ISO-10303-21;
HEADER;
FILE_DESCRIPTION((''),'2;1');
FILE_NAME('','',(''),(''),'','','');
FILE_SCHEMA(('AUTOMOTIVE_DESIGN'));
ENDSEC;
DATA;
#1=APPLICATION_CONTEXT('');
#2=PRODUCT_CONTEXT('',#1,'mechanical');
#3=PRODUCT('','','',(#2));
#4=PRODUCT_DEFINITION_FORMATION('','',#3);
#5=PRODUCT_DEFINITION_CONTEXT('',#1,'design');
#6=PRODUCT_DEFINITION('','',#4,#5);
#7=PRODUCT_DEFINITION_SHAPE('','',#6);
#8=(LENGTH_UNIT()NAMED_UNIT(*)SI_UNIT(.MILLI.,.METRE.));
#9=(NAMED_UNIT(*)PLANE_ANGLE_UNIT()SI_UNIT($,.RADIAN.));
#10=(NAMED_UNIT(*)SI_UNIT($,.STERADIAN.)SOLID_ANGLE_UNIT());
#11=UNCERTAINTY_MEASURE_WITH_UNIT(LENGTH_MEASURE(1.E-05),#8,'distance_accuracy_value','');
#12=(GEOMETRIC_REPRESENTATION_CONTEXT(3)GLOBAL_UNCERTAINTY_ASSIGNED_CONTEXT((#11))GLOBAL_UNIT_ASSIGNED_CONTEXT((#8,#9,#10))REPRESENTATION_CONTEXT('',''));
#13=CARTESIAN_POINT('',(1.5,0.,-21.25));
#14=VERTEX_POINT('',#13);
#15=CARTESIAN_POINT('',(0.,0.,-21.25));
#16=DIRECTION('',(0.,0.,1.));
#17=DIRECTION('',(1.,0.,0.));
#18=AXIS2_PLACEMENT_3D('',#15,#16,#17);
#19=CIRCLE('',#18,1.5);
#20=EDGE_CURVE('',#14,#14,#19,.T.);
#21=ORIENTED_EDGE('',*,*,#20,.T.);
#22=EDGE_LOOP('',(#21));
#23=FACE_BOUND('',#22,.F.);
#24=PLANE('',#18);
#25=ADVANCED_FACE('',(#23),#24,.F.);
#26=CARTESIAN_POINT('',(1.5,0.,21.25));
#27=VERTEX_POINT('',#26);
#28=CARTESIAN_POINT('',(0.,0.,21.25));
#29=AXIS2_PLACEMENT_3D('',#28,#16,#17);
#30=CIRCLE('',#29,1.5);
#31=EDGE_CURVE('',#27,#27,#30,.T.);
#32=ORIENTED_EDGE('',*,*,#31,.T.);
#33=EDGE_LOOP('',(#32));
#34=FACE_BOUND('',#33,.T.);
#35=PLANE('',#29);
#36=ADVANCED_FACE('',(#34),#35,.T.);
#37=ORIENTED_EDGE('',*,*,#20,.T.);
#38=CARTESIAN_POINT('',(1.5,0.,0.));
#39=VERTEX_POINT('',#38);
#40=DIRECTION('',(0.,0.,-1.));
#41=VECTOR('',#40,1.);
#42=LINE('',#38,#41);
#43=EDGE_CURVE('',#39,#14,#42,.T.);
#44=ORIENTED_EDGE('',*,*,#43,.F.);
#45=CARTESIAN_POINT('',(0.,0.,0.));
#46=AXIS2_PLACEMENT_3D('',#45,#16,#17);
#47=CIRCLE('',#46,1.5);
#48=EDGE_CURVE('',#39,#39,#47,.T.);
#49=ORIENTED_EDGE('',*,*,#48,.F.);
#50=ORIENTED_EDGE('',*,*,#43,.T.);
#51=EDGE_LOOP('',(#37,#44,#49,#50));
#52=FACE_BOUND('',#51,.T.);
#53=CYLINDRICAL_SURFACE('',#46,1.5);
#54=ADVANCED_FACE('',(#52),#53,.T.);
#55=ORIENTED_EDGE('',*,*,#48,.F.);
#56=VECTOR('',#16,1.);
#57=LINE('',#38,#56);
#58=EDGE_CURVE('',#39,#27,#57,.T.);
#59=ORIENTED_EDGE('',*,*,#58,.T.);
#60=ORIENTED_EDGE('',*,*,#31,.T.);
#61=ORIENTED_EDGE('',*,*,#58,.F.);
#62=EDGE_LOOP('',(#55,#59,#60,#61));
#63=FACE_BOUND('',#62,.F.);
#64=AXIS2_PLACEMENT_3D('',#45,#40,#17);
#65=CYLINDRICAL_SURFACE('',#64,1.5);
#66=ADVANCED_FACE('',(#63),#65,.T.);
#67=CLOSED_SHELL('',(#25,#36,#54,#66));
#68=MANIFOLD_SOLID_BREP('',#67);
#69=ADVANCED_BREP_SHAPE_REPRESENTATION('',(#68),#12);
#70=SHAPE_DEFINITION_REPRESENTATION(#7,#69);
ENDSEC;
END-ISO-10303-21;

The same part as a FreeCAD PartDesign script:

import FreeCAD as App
import Part
import Sketcher

V = App.Vector

doc = App.newDocument("Part")
params = doc.addObject("Spreadsheet::Sheet", "Params")
for row, (alias, value) in enumerate([
    ("sketch1_diameter", "3 mm"),
    ("pad1_length", "42.5 mm"),
], start=1):
    params.set(f"A{row}", alias)
    params.set(f"B{row}", "=" + value)
    params.setAlias(f"B{row}", alias)

body = doc.addObject("PartDesign::Body", "Body")

sketch1 = body.newObject("Sketcher::SketchObject", "Sketch")
sketch1.AttachmentSupport = (doc.getObject("XY_Plane"), [""])
sketch1.MapMode = "FlatFace"
sketch1.addGeometry(Part.Circle(V(0, 0, 0), V(0, 0, 1), 1.5), False)
sketch1.addConstraint(Sketcher.Constraint("Coincident", 0, 3, -1, 1))
sketch1.addConstraint(Sketcher.Constraint("Diameter", 0, 3.0))
sketch1.setExpression("Constraints[1]", "Params.sketch1_diameter")
pad1 = body.newObject("PartDesign::Pad", "Pad")
pad1.Profile = sketch1
pad1.setExpression("Length", "Params.pad1_length")
pad1.Midplane = True

doc.recompute()
